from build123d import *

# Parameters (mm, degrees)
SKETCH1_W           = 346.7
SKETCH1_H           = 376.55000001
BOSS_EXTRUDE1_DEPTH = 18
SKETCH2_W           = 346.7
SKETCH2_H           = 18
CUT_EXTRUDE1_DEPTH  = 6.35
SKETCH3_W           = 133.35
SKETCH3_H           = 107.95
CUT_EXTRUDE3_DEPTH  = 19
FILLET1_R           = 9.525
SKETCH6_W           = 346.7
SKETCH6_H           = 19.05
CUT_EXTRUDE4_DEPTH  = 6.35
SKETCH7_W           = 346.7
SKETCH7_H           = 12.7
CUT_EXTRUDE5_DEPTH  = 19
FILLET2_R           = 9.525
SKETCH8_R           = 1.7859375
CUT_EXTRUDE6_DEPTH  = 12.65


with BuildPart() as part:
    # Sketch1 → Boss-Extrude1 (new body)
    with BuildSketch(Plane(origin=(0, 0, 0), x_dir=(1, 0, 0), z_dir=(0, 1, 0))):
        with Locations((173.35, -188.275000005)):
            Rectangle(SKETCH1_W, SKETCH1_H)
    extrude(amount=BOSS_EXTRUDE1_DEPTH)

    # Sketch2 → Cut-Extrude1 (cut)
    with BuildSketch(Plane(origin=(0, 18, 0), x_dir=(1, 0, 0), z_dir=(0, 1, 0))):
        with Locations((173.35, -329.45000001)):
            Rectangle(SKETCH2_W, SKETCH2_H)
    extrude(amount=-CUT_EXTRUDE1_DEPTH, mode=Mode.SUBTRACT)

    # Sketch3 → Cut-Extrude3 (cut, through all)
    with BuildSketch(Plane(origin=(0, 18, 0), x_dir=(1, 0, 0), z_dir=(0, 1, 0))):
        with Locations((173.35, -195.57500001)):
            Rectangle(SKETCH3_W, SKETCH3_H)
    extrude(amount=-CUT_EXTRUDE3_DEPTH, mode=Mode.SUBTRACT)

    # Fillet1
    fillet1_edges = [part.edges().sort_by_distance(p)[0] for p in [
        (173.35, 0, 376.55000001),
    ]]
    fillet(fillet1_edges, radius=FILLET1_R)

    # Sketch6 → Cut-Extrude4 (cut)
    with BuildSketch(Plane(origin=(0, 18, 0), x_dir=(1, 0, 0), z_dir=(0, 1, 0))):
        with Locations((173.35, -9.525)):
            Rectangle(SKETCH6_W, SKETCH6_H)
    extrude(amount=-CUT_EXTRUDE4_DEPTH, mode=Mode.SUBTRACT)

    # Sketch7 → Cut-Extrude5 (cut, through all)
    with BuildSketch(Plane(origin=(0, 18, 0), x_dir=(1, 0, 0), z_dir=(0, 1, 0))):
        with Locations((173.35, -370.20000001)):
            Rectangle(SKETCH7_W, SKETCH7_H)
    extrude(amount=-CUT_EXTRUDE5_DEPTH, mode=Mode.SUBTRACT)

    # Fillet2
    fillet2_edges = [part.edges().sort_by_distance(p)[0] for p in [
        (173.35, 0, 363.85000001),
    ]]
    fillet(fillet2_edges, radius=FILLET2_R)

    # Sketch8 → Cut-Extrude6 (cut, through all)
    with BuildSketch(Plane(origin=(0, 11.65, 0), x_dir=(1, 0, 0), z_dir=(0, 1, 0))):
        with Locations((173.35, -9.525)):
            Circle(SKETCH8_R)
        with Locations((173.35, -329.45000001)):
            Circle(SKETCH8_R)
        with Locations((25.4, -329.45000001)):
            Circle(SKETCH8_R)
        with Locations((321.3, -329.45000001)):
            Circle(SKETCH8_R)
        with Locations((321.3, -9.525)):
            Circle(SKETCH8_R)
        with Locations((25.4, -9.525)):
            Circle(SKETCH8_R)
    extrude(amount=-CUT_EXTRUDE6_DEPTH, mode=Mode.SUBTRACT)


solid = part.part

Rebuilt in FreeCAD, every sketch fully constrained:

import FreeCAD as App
import Part
import Sketcher
from FreeCAD import Vector
Q = App.Units.Quantity


def edges_at(feature, points):
    """Names of the edges that pass closest to the given points."""
    edges = feature.Shape.Edges
    near = lambda p: min(range(len(edges)), key=lambda i: edges[i].distToShape(Part.Vertex(*p))[0])
    return sorted({f"Edge{near(p) + 1}" for p in points})


def add_polygon(sketch, points):
    """Adds a closed chain of lines whose ends are joined by coincident constraints."""
    first, n = sketch.GeometryCount, len(points)
    for a, b in zip(points, points[1:] + points[:1]):
        sketch.addGeometry(Part.LineSegment(App.Vector(*a, 0), App.Vector(*b, 0)), False)
    for i in range(n):
        sketch.addConstraint(Sketcher.Constraint("Coincident", first + i, 2, first + (i + 1) % n, 1))

doc = App.newDocument("Part")
body = doc.addObject("PartDesign::Body", "Body")

sketch1 = doc.addObject("Sketcher::SketchObject", "Sketch")
body.addObject(sketch1)
sketch1.AttachmentSupport = (doc.XZ_Plane, [""])
sketch1.MapMode = "FlatFace"
add_polygon(sketch1, [(0, 0), (0, 376.55), (346.7, 376.55), (346.7, 0)])
sketch1.addConstraint([
    Sketcher.Constraint("Vertical", 0),
    Sketcher.Constraint("Horizontal", 1),
    Sketcher.Constraint("Vertical", 2),
    Sketcher.Constraint("Horizontal", 3),
    Sketcher.Constraint("Coincident", 3, 2, -1, 1),
    Sketcher.Constraint("DistanceX", 1, 1, 1, 2, Q("346.7 mm")),
    Sketcher.Constraint("DistanceY", 0, 1, 0, 2, Q("376.55 mm")),
])
pad1 = doc.addObject("PartDesign::Pad", "Pad")
body.addObject(pad1)
pad1.Profile = sketch1
pad1.Length = 18
pad1.Reversed = True

sketch2 = doc.addObject("Sketcher::SketchObject", "Sketch001")
body.addObject(sketch2)
sketch2.AttachmentSupport = (doc.XZ_Plane, [""])
sketch2.MapMode = "FlatFace"
sketch2.AttachmentOffset = App.Placement(Vector(0, 0, -18), App.Rotation())
add_polygon(sketch2, [(0, 320.45), (0, 338.45), (346.7, 338.45), (346.7, 320.45)])
sketch2.addConstraint([
    Sketcher.Constraint("Vertical", 0),
    Sketcher.Constraint("Horizontal", 1),
    Sketcher.Constraint("Vertical", 2),
    Sketcher.Constraint("Horizontal", 3),
    Sketcher.Constraint("PointOnObject", 0, 2, -2),
    Sketcher.Constraint("DistanceX", 1, 1, 1, 2, Q("346.7 mm")),
    Sketcher.Constraint("DistanceY", 0, 1, 0, 2, Q("18 mm")),
    Sketcher.Constraint("DistanceY", -1, 1, 0, 2, Q("338.45 mm")),
])
pocket1 = doc.addObject("PartDesign::Pocket", "Pocket")
body.addObject(pocket1)
pocket1.Profile = sketch2
pocket1.Length = Q("0.25 in")
pocket1.Reversed = True

sketch3 = doc.addObject("Sketcher::SketchObject", "Sketch002")
body.addObject(sketch3)
sketch3.AttachmentSupport = (doc.XZ_Plane, [""])
sketch3.MapMode = "FlatFace"
sketch3.AttachmentOffset = App.Placement(Vector(0, 0, -18), App.Rotation())
add_polygon(sketch3, [(106.675, 141.6), (106.675, 249.55), (240.025, 249.55), (240.025, 141.6)])
sketch3.addConstraint([
    Sketcher.Constraint("Vertical", 0),
    Sketcher.Constraint("Horizontal", 1),
    Sketcher.Constraint("Vertical", 2),
    Sketcher.Constraint("Horizontal", 3),
    Sketcher.Constraint("DistanceX", 1, 1, 1, 2, Q("5.25 in")),
    Sketcher.Constraint("DistanceY", 0, 1, 0, 2, Q("4.25 in")),
    Sketcher.Constraint("DistanceX", -1, 1, 0, 2, Q("106.675 mm")),
    Sketcher.Constraint("DistanceY", -1, 1, 0, 2, Q("249.55 mm")),
])
pocket2 = doc.addObject("PartDesign::Pocket", "Pocket001")
body.addObject(pocket2)
pocket2.Profile = sketch3
pocket2.Type = "ThroughAll"
pocket2.Reversed = True
doc.recompute()

fillet = doc.addObject("PartDesign::Fillet", "Fillet")
body.addObject(fillet)
fillet.Base = (pocket2, edges_at(pocket2, [(173.35, 0, 376.55)]))
fillet.Radius = Q("0.375 in")

sketch4 = doc.addObject("Sketcher::SketchObject", "Sketch003")
body.addObject(sketch4)
sketch4.AttachmentSupport = (doc.XZ_Plane, [""])
sketch4.MapMode = "FlatFace"
sketch4.AttachmentOffset = App.Placement(Vector(0, 0, -18), App.Rotation())
add_polygon(sketch4, [(0, 0), (0, 19.05), (346.7, 19.05), (346.7, 0)])
sketch4.addConstraint([
    Sketcher.Constraint("Vertical", 0),
    Sketcher.Constraint("Horizontal", 1),
    Sketcher.Constraint("Vertical", 2),
    Sketcher.Constraint("Horizontal", 3),
    Sketcher.Constraint("Coincident", 3, 2, -1, 1),
    Sketcher.Constraint("DistanceY", 0, 1, 0, 2, Q("0.75 in")),
    Sketcher.Constraint("DistanceX", 1, 1, 1, 2, Q("346.7 mm")),
])
pocket3 = doc.addObject("PartDesign::Pocket", "Pocket002")
body.addObject(pocket3)
pocket3.Profile = sketch4
pocket3.Length = Q("0.25 in")
pocket3.Reversed = True

sketch5 = doc.addObject("Sketcher::SketchObject", "Sketch004")
body.addObject(sketch5)
sketch5.AttachmentSupport = (doc.XZ_Plane, [""])
sketch5.MapMode = "FlatFace"
sketch5.AttachmentOffset = App.Placement(Vector(0, 0, -18), App.Rotation())
add_polygon(sketch5, [(0, 363.85), (0, 376.55), (346.7, 376.55), (346.7, 363.85)])
sketch5.addConstraint([
    Sketcher.Constraint("Vertical", 0),
    Sketcher.Constraint("Horizontal", 1),
    Sketcher.Constraint("Vertical", 2),
    Sketcher.Constraint("Horizontal", 3),
    Sketcher.Constraint("PointOnObject", 0, 2, -2),
    Sketcher.Constraint("DistanceY", 0, 1, 0, 2, Q("0.5 in")),
    Sketcher.Constraint("DistanceX", 1, 1, 1, 2, Q("346.7 mm")),
    Sketcher.Constraint("DistanceY", -1, 1, 0, 2, Q("376.55 mm")),
])
pocket4 = doc.addObject("PartDesign::Pocket", "Pocket003")
body.addObject(pocket4)
pocket4.Profile = sketch5
pocket4.Type = "ThroughAll"
pocket4.Reversed = True
doc.recompute()

fillet2 = doc.addObject("PartDesign::Fillet", "Fillet001")
body.addObject(fillet2)
fillet2.Base = (pocket4, edges_at(pocket4, [(173.35, 0, 363.85)]))
fillet2.Radius = Q("0.375 in")

sketch6 = doc.addObject("Sketcher::SketchObject", "Sketch005")
body.addObject(sketch6)
sketch6.AttachmentSupport = (doc.XZ_Plane, [""])
sketch6.MapMode = "FlatFace"
sketch6.AttachmentOffset = App.Placement(Vector(0, 0, -11.65), App.Rotation())
sketch6.addGeometry([
    Part.Circle(Vector(173.35, 9.525, 0), Vector(0, 0, 1), 1.785937),
    Part.Circle(Vector(173.35, 329.45, 0), Vector(0, 0, 1), 1.785937),
    Part.Circle(Vector(25.4, 329.45, 0), Vector(0, 0, 1), 1.785937),
    Part.Circle(Vector(321.3, 329.45, 0), Vector(0, 0, 1), 1.785937),
    Part.Circle(Vector(321.3, 9.525, 0), Vector(0, 0, 1), 1.785937),
    Part.Circle(Vector(25.4, 9.525, 0), Vector(0, 0, 1), 1.785937),
], False)
sketch6.addConstraint([
    Sketcher.Constraint("Equal", 0, 1),
    Sketcher.Constraint("Equal", 1, 2),
    Sketcher.Constraint("Equal", 2, 3),
    Sketcher.Constraint("Equal", 3, 4),
    Sketcher.Constraint("Equal", 4, 5),
    Sketcher.Constraint("Horizontal", 1, 3, 2, 3),
    Sketcher.Constraint("Horizontal", 2, 3, 3, 3),
    Sketcher.Constraint("Horizontal", 0, 3, 4, 3),
    Sketcher.Constraint("Horizontal", 4, 3, 5, 3),
    Sketcher.Constraint("Vertical", 0, 3, 1, 3),
    Sketcher.Constraint("Vertical", 3, 3, 4, 3),
    Sketcher.Constraint("Vertical", 2, 3, 5, 3),
    Sketcher.Constraint("Diameter", 0, Q("0.140625 in")),
    Sketcher.Constraint("DistanceX", -1, 1, 2, 3, Q("1 in")),
    Sketcher.Constraint("DistanceY", -1, 1, 0, 3, Q("0.375 in")),
    Sketcher.Constraint("DistanceX", -1, 1, 0, 3, Q("173.35 mm")),
    Sketcher.Constraint("DistanceY", -1, 1, 1, 3, Q("329.45 mm")),
    Sketcher.Constraint("DistanceX", -1, 1, 3, 3, Q("321.3 mm")),
])
pocket5 = doc.addObject("PartDesign::Pocket", "Pocket004")
body.addObject(pocket5)
pocket5.Profile = sketch6
pocket5.Type = "ThroughAll"
pocket5.Reversed = True

doc.recompute()
